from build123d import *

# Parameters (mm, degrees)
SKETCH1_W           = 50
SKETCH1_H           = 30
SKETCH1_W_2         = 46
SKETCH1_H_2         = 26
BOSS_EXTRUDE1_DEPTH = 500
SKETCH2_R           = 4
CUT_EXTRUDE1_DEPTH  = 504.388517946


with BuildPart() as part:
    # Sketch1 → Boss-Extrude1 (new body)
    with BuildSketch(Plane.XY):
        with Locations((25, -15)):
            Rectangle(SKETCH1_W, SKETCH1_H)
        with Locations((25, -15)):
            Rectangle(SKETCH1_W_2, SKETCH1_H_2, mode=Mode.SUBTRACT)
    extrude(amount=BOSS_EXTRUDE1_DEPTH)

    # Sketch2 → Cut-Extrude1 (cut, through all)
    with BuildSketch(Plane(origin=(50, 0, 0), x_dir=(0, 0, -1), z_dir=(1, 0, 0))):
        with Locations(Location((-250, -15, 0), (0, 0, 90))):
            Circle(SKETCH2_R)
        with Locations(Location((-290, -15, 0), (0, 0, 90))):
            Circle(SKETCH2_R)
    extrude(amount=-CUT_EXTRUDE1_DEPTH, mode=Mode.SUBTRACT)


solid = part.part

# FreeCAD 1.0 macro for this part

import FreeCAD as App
import Part
import Sketcher

V = App.Vector

doc = App.newDocument("Part")
body = doc.addObject("PartDesign::Body", "Body")

# Sketch on XY plane
sketch1 = doc.addObject("Sketcher::SketchObject", "Sketch")
body.addObject(sketch1)
sketch1.AttachmentSupport = (doc.XY_Plane, [""])
sketch1.MapMode = "FlatFace"
sketch1.addGeometry(Part.LineSegment(V(0, 0, 0), V(0, -30, 0)), False)
sketch1.addGeometry(Part.LineSegment(V(0, -30, 0), V(50, -30, 0)), False)
sketch1.addGeometry(Part.LineSegment(V(50, -30, 0), V(50, 0, 0)), False)
sketch1.addGeometry(Part.LineSegment(V(50, 0, 0), V(0, 0, 0)), False)
sketch1.addGeometry(Part.LineSegment(V(48, -28, 0), V(2, -28, 0)), False)
sketch1.addGeometry(Part.LineSegment(V(2, -28, 0), V(2, -2, 0)), False)
sketch1.addGeometry(Part.LineSegment(V(2, -2, 0), V(48, -2, 0)), False)
sketch1.addGeometry(Part.LineSegment(V(48, -2, 0), V(48, -28, 0)), False)
sketch1.addConstraint(Sketcher.Constraint("Coincident", 0, 2, 1, 1))
sketch1.addConstraint(Sketcher.Constraint("Coincident", 1, 2, 2, 1))
sketch1.addConstraint(Sketcher.Constraint("Coincident", 2, 2, 3, 1))
sketch1.addConstraint(Sketcher.Constraint("Coincident", 3, 2, 0, 1))
sketch1.addConstraint(Sketcher.Constraint("Coincident", 4, 2, 5, 1))
sketch1.addConstraint(Sketcher.Constraint("Coincident", 5, 2, 6, 1))
sketch1.addConstraint(Sketcher.Constraint("Coincident", 6, 2, 7, 1))
sketch1.addConstraint(Sketcher.Constraint("Coincident", 7, 2, 4, 1))
sketch1.addConstraint(Sketcher.Constraint("Vertical", 0))
sketch1.addConstraint(Sketcher.Constraint("Horizontal", 1))
sketch1.addConstraint(Sketcher.Constraint("Vertical", 2))
sketch1.addConstraint(Sketcher.Constraint("Horizontal", 3))
sketch1.addConstraint(Sketcher.Constraint("Horizontal", 4))
sketch1.addConstraint(Sketcher.Constraint("Vertical", 5))
sketch1.addConstraint(Sketcher.Constraint("Horizontal", 6))
sketch1.addConstraint(Sketcher.Constraint("Vertical", 7))
sketch1.addConstraint(Sketcher.Constraint("Coincident", 3, 2, -1, 1))
sketch1.addConstraint(Sketcher.Constraint("DistanceX", 1, 1, 1, 2, 50.0))
sketch1.addConstraint(Sketcher.Constraint("DistanceX", 4, 2, 4, 1, 46.0))
sketch1.addConstraint(Sketcher.Constraint("DistanceY", 0, 2, 0, 1, 30.0))
sketch1.addConstraint(Sketcher.Constraint("DistanceY", 5, 1, 5, 2, 26.0))
sketch1.addConstraint(Sketcher.Constraint("DistanceX", -1, 1, 4, 2, 2.0))
sketch1.addConstraint(Sketcher.Constraint("DistanceY", 4, 2, -1, 1, 28.0))
pad1 = doc.addObject("PartDesign::Pad", "Pad")
body.addObject(pad1)
pad1.Profile = sketch1
pad1.Length = 500

# Sketch on YZ plane
sketch2 = doc.addObject("Sketcher::SketchObject", "Sketch001")
body.addObject(sketch2)
sketch2.AttachmentSupport = (doc.YZ_Plane, [""])
sketch2.MapMode = "FlatFace"
sketch2.AttachmentOffset = App.Placement(V(0, 0, 50), App.Rotation())
sketch2.addGeometry(Part.Circle(V(-15, 250, 0), V(0, 0, 1), 4), False)
sketch2.addGeometry(Part.Circle(V(-15, 290, 0), V(0, 0, 1), 4), False)
sketch2.addConstraint(Sketcher.Constraint("Equal", 0, 1))
sketch2.addConstraint(Sketcher.Constraint("Vertical", 0, 3, 1, 3))
sketch2.addConstraint(Sketcher.Constraint("Diameter", 0, 8.0))
sketch2.addConstraint(Sketcher.Constraint("DistanceX", 0, 3, -1, 1, 15.0))
sketch2.addConstraint(Sketcher.Constraint("DistanceY", -1, 1, 0, 3, 250.0))
sketch2.addConstraint(Sketcher.Constraint("DistanceY", -1, 1, 1, 3, 290.0))
pocket1 = doc.addObject("PartDesign::Pocket", "Pocket")
body.addObject(pocket1)
pocket1.Profile = sketch2
pocket1.Type = "ThroughAll"

doc.recompute()
